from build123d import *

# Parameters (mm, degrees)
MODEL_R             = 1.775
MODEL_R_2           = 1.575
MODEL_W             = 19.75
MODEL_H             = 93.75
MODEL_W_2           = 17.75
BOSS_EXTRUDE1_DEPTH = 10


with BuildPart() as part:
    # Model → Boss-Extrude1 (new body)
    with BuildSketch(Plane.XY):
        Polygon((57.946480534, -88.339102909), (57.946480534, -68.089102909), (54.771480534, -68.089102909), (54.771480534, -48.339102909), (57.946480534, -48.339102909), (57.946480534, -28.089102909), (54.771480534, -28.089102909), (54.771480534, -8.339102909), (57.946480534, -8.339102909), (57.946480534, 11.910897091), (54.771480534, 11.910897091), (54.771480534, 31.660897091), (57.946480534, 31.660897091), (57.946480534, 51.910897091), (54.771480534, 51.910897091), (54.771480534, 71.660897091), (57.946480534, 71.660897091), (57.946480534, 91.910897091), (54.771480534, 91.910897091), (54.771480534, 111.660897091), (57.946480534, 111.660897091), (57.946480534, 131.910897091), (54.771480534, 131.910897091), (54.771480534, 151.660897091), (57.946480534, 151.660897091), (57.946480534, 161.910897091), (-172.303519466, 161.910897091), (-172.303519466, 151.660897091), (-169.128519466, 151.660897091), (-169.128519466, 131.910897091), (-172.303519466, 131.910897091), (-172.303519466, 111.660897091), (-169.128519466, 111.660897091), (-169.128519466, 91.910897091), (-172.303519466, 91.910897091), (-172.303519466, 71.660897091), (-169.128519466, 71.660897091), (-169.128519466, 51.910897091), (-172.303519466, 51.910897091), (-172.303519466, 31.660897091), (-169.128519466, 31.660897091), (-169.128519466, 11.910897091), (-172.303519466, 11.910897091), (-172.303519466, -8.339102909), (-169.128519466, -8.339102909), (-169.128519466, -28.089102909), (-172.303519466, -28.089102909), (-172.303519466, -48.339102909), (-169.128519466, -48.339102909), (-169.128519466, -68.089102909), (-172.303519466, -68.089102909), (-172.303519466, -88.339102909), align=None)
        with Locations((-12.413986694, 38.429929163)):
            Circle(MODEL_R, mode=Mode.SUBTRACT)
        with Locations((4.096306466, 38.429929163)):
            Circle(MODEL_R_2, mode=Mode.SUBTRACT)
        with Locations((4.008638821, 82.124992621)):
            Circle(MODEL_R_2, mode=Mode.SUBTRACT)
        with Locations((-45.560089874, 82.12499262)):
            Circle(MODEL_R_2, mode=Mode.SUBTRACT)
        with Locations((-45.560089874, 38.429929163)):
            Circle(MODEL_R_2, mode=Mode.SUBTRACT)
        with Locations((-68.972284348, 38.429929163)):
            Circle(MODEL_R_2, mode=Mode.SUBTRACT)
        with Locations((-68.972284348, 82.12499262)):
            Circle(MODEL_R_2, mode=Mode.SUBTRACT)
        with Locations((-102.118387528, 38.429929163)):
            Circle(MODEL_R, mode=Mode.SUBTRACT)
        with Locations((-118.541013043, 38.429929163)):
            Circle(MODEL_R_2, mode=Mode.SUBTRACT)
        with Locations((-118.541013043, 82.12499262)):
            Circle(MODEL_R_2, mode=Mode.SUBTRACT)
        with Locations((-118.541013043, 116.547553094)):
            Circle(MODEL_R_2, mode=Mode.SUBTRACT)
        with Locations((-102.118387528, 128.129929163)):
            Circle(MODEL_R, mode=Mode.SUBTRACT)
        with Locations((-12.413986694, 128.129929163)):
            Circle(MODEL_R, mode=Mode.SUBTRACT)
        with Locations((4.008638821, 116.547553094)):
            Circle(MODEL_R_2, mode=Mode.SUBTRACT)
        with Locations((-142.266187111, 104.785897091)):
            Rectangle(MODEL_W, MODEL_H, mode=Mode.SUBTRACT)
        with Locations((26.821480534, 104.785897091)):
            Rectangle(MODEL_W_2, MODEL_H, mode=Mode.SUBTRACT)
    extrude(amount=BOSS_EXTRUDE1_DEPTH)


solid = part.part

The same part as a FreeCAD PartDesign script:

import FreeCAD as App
import Part
import Sketcher

V = App.Vector
Q = App.Units.Quantity

doc = App.newDocument("Part")
body = doc.addObject("PartDesign::Body", "Body")

sketch1 = body.newObject("Sketcher::SketchObject", "Sketch")
sketch1.AttachmentSupport = (doc.getObject("XY_Plane"), [""])
sketch1.MapMode = "FlatFace"
sketch1.addGeometry([
    Part.LineSegment(V(57.9, -88.3, 0), V(57.9, -68.1, 0)),
    Part.LineSegment(V(57.9, -68.1, 0), V(54.8, -68.1, 0)),
    Part.LineSegment(V(54.8, -68.1, 0), V(54.8, -48.3, 0)),
    Part.LineSegment(V(54.8, -48.3, 0), V(57.9, -48.3, 0)),
    Part.LineSegment(V(57.9, -48.3, 0), V(57.9, -28.1, 0)),
    Part.LineSegment(V(57.9, -28.1, 0), V(54.8, -28.1, 0)),
    Part.LineSegment(V(54.8, -28.1, 0), V(54.8, -8.3, 0)),
    Part.LineSegment(V(54.8, -8.3, 0), V(57.9, -8.3, 0)),
    Part.LineSegment(V(57.9, -8.3, 0), V(57.9, 11.9, 0)),
    Part.LineSegment(V(57.9, 11.9, 0), V(54.8, 11.9, 0)),
    Part.LineSegment(V(54.8, 11.9, 0), V(54.8, 31.7, 0)),
    Part.LineSegment(V(54.8, 31.7, 0), V(57.9, 31.7, 0)),
    Part.LineSegment(V(57.9, 31.7, 0), V(57.9, 51.9, 0)),
    Part.LineSegment(V(57.9, 51.9, 0), V(54.8, 51.9, 0)),
    Part.LineSegment(V(54.8, 51.9, 0), V(54.8, 71.7, 0)),
    Part.LineSegment(V(54.8, 71.7, 0), V(57.9, 71.7, 0)),
    Part.LineSegment(V(57.9, 71.7, 0), V(57.9, 91.9, 0)),
    Part.LineSegment(V(57.9, 91.9, 0), V(54.8, 91.9, 0)),
    Part.LineSegment(V(54.8, 91.9, 0), V(54.8, 111.7, 0)),
    Part.LineSegment(V(54.8, 111.7, 0), V(57.9, 111.7, 0)),
    Part.LineSegment(V(57.9, 111.7, 0), V(57.9, 131.9, 0)),
    Part.LineSegment(V(57.9, 131.9, 0), V(54.8, 131.9, 0)),
    Part.LineSegment(V(54.8, 131.9, 0), V(54.8, 151.7, 0)),
    Part.LineSegment(V(54.8, 151.7, 0), V(57.9, 151.7, 0)),
    Part.LineSegment(V(57.9, 151.7, 0), V(57.9, 161.9, 0)),
    Part.LineSegment(V(57.9, 161.9, 0), V(-172.3, 161.9, 0)),
    Part.LineSegment(V(-172.3, 161.9, 0), V(-172.3, 151.7, 0)),
    Part.LineSegment(V(-172.3, 151.7, 0), V(-169.1, 151.7, 0)),
    Part.LineSegment(V(-169.1, 151.7, 0), V(-169.1, 131.9, 0)),
    Part.LineSegment(V(-169.1, 131.9, 0), V(-172.3, 131.9, 0)),
    Part.LineSegment(V(-172.3, 131.9, 0), V(-172.3, 111.7, 0)),
    Part.LineSegment(V(-172.3, 111.7, 0), V(-169.1, 111.7, 0)),
    Part.LineSegment(V(-169.1, 111.7, 0), V(-169.1, 91.9, 0)),
    Part.LineSegment(V(-169.1, 91.9, 0), V(-172.3, 91.9, 0)),
    Part.LineSegment(V(-172.3, 91.9, 0), V(-172.3, 71.7, 0)),
    Part.LineSegment(V(-172.3, 71.7, 0), V(-169.1, 71.7, 0)),
    Part.LineSegment(V(-169.1, 71.7, 0), V(-169.1, 51.9, 0)),
    Part.LineSegment(V(-169.1, 51.9, 0), V(-172.3, 51.9, 0)),
    Part.LineSegment(V(-172.3, 51.9, 0), V(-172.3, 31.7, 0)),
    Part.LineSegment(V(-172.3, 31.7, 0), V(-169.1, 31.7, 0)),
    Part.LineSegment(V(-169.1, 31.7, 0), V(-169.1, 11.9, 0)),
    Part.LineSegment(V(-169.1, 11.9, 0), V(-172.3, 11.9, 0)),
    Part.LineSegment(V(-172.3, 11.9, 0), V(-172.3, -8.3, 0)),
    Part.LineSegment(V(-172.3, -8.3, 0), V(-169.1, -8.3, 0)),
    Part.LineSegment(V(-169.1, -8.3, 0), V(-169.1, -28.1, 0)),
    Part.LineSegment(V(-169.1, -28.1, 0), V(-172.3, -28.1, 0)),
    Part.LineSegment(V(-172.3, -28.1, 0), V(-172.3, -48.3, 0)),
    Part.LineSegment(V(-172.3, -48.3, 0), V(-169.1, -48.3, 0)),
    Part.LineSegment(V(-169.1, -48.3, 0), V(-169.1, -68.1, 0)),
    Part.LineSegment(V(-169.1, -68.1, 0), V(-172.3, -68.1, 0)),
    Part.LineSegment(V(-172.3, -68.1, 0), V(-172.3, -88.3, 0)),
    Part.LineSegment(V(-172.3, -88.3, 0), V(57.9, -88.3, 0)),
    Part.Circle(V(-118.5, 38.4, 0), V(0, 0, 1), 1.6),
    Part.Circle(V(-102.1, 38.4, 0), V(0, 0, 1), 1.8),
    Part.Circle(V(-69, 38.4, 0), V(0, 0, 1), 1.6),
    Part.Circle(V(-118.5, 82.1, 0), V(0, 0, 1), 1.6),
    Part.Circle(V(-69, 82.1, 0), V(0, 0, 1), 1.6),
    Part.Circle(V(-45.6, 38.4, 0), V(0, 0, 1), 1.6),
    Part.Circle(V(-12.4, 38.4, 0), V(0, 0, 1), 1.8),
    Part.Circle(V(4.1, 38.4, 0), V(0, 0, 1), 1.6),
    Part.Circle(V(-45.6, 82.1, 0), V(0, 0, 1), 1.6),
    Part.Circle(V(4, 82.1, 0), V(0, 0, 1), 1.6),
    Part.LineSegment(V(-132.4, 57.9, 0), V(-152.1, 57.9, 0)),
    Part.LineSegment(V(-152.1, 57.9, 0), V(-152.1, 151.7, 0)),
    Part.LineSegment(V(-152.1, 151.7, 0), V(-132.4, 151.7, 0)),
    Part.LineSegment(V(-132.4, 151.7, 0), V(-132.4, 57.9, 0)),
    Part.Circle(V(-118.5, 116.5, 0), V(0, 0, 1), 1.6),
    Part.Circle(V(-102.1, 128.1, 0), V(0, 0, 1), 1.8),
    Part.LineSegment(V(35.7, 57.9, 0), V(17.9, 57.9, 0)),
    Part.LineSegment(V(17.9, 57.9, 0), V(17.9, 151.7, 0)),
    Part.LineSegment(V(17.9, 151.7, 0), V(35.7, 151.7, 0)),
    Part.LineSegment(V(35.7, 151.7, 0), V(35.7, 57.9, 0)),
    Part.Circle(V(4, 116.5, 0), V(0, 0, 1), 1.6),
    Part.Circle(V(-12.4, 128.1, 0), V(0, 0, 1), 1.8),
], False)
sketch1.addConstraint([
    Sketcher.Constraint("Coincident", 0, 2, 1, 1),
    Sketcher.Constraint("Coincident", 1, 2, 2, 1),
    Sketcher.Constraint("Coincident", 2, 2, 3, 1),
    Sketcher.Constraint("Coincident", 3, 2, 4, 1),
    Sketcher.Constraint("Coincident", 4, 2, 5, 1),
    Sketcher.Constraint("Coincident", 5, 2, 6, 1),
    Sketcher.Constraint("Coincident", 6, 2, 7, 1),
    Sketcher.Constraint("Coincident", 7, 2, 8, 1),
    Sketcher.Constraint("Coincident", 8, 2, 9, 1),
    Sketcher.Constraint("Coincident", 9, 2, 10, 1),
    Sketcher.Constraint("Coincident", 10, 2, 11, 1),
    Sketcher.Constraint("Coincident", 11, 2, 12, 1),
    Sketcher.Constraint("Coincident", 12, 2, 13, 1),
    Sketcher.Constraint("Coincident", 13, 2, 14, 1),
    Sketcher.Constraint("Coincident", 14, 2, 15, 1),
    Sketcher.Constraint("Coincident", 15, 2, 16, 1),
    Sketcher.Constraint("Coincident", 16, 2, 17, 1),
    Sketcher.Constraint("Coincident", 17, 2, 18, 1),
    Sketcher.Constraint("Coincident", 18, 2, 19, 1),
    Sketcher.Constraint("Coincident", 19, 2, 20, 1),
    Sketcher.Constraint("Coincident", 20, 2, 21, 1),
    Sketcher.Constraint("Coincident", 21, 2, 22, 1),
    Sketcher.Constraint("Coincident", 22, 2, 23, 1),
    Sketcher.Constraint("Coincident", 23, 2, 24, 1),
    Sketcher.Constraint("Coincident", 24, 2, 25, 1),
    Sketcher.Constraint("Coincident", 25, 2, 26, 1),
    Sketcher.Constraint("Coincident", 26, 2, 27, 1),
    Sketcher.Constraint("Coincident", 27, 2, 28, 1),
    Sketcher.Constraint("Coincident", 28, 2, 29, 1),
    Sketcher.Constraint("Coincident", 29, 2, 30, 1),
    Sketcher.Constraint("Coincident", 30, 2, 31, 1),
    Sketcher.Constraint("Coincident", 31, 2, 32, 1),
    Sketcher.Constraint("Coincident", 32, 2, 33, 1),
    Sketcher.Constraint("Coincident", 33, 2, 34, 1),
    Sketcher.Constraint("Coincident", 34, 2, 35, 1),
    Sketcher.Constraint("Coincident", 35, 2, 36, 1),
    Sketcher.Constraint("Coincident", 36, 2, 37, 1),
    Sketcher.Constraint("Coincident", 37, 2, 38, 1),
    Sketcher.Constraint("Coincident", 38, 2, 39, 1),
    Sketcher.Constraint("Coincident", 39, 2, 40, 1),
    Sketcher.Constraint("Coincident", 40, 2, 41, 1),
    Sketcher.Constraint("Coincident", 41, 2, 42, 1),
    Sketcher.Constraint("Coincident", 42, 2, 43, 1),
    Sketcher.Constraint("Coincident", 43, 2, 44, 1),
    Sketcher.Constraint("Coincident", 44, 2, 45, 1),
    Sketcher.Constraint("Coincident", 45, 2, 46, 1),
    Sketcher.Constraint("Coincident", 46, 2, 47, 1),
    Sketcher.Constraint("Coincident", 47, 2, 48, 1),
    Sketcher.Constraint("Coincident", 48, 2, 49, 1),
    Sketcher.Constraint("Coincident", 49, 2, 50, 1),
    Sketcher.Constraint("Coincident", 50, 2, 51, 1),
    Sketcher.Constraint("Coincident", 51, 2, 0, 1),
    Sketcher.Constraint("Coincident", 62, 2, 63, 1),
    Sketcher.Constraint("Coincident", 63, 2, 64, 1),
    Sketcher.Constraint("Coincident", 64, 2, 65, 1),
    Sketcher.Constraint("Coincident", 65, 2, 62, 1),
    Sketcher.Constraint("Coincident", 68, 2, 69, 1),
    Sketcher.Constraint("Coincident", 69, 2, 70, 1),
    Sketcher.Constraint("Coincident", 70, 2, 71, 1),
    Sketcher.Constraint("Coincident", 71, 2, 68, 1),
    Sketcher.Constraint("Vertical", 0),
    Sketcher.Constraint("Horizontal", 1),
    Sketcher.Constraint("Vertical", 2),
    Sketcher.Constraint("Horizontal", 3),
    Sketcher.Constraint("Vertical", 4),
    Sketcher.Constraint("Horizontal", 5),
    Sketcher.Constraint("Vertical", 6),
    Sketcher.Constraint("Horizontal", 7),
    Sketcher.Constraint("Vertical", 8),
    Sketcher.Constraint("Horizontal", 9),
    Sketcher.Constraint("Vertical", 10),
    Sketcher.Constraint("Horizontal", 11),
    Sketcher.Constraint("Vertical", 12),
    Sketcher.Constraint("Horizontal", 13),
    Sketcher.Constraint("Vertical", 14),
    Sketcher.Constraint("Horizontal", 15),
    Sketcher.Constraint("Vertical", 16),
    Sketcher.Constraint("Horizontal", 17),
    Sketcher.Constraint("Vertical", 18),
    Sketcher.Constraint("Horizontal", 19),
    Sketcher.Constraint("Vertical", 20),
    Sketcher.Constraint("Horizontal", 21),
    Sketcher.Constraint("Vertical", 22),
    Sketcher.Constraint("Horizontal", 23),
    Sketcher.Constraint("Vertical", 24),
    Sketcher.Constraint("Horizontal", 25),
    Sketcher.Constraint("Vertical", 26),
    Sketcher.Constraint("Horizontal", 27),
    Sketcher.Constraint("Vertical", 28),
    Sketcher.Constraint("Horizontal", 29),
    Sketcher.Constraint("Vertical", 30),
    Sketcher.Constraint("Horizontal", 31),
    Sketcher.Constraint("Vertical", 32),
    Sketcher.Constraint("Horizontal", 33),
    Sketcher.Constraint("Vertical", 34),
    Sketcher.Constraint("Horizontal", 35),
    Sketcher.Constraint("Vertical", 36),
    Sketcher.Constraint("Horizontal", 37),
    Sketcher.Constraint("Vertical", 38),
    Sketcher.Constraint("Horizontal", 39),
    Sketcher.Constraint("Vertical", 40),
    Sketcher.Constraint("Horizontal", 41),
    Sketcher.Constraint("Vertical", 42),
    Sketcher.Constraint("Horizontal", 43),
    Sketcher.Constraint("Vertical", 44),
    Sketcher.Constraint("Horizontal", 45),
    Sketcher.Constraint("Vertical", 46),
    Sketcher.Constraint("Horizontal", 47),
    Sketcher.Constraint("Vertical", 48),
    Sketcher.Constraint("Horizontal", 49),
    Sketcher.Constraint("Vertical", 50),
    Sketcher.Constraint("Horizontal", 51),
    Sketcher.Constraint("Horizontal", 62),
    Sketcher.Constraint("Vertical", 63),
    Sketcher.Constraint("Horizontal", 64),
    Sketcher.Constraint("Vertical", 65),
    Sketcher.Constraint("Horizontal", 68),
    Sketcher.Constraint("Vertical", 69),
    Sketcher.Constraint("Horizontal", 70),
    Sketcher.Constraint("Vertical", 71),
    Sketcher.Constraint("Equal", 52, 54),
    Sketcher.Constraint("Equal", 54, 55),
    Sketcher.Constraint("Equal", 55, 56),
    Sketcher.Constraint("Equal", 56, 57),
    Sketcher.Constraint("Equal", 53, 58),
    Sketcher.Constraint("Equal", 57, 59),
    Sketcher.Constraint("Equal", 59, 60),
    Sketcher.Constraint("Equal", 60, 61),
    Sketcher.Constraint("Equal", 61, 66),
    Sketcher.Constraint("Equal", 58, 67),
    Sketcher.Constraint("Equal", 66, 72),
    Sketcher.Constraint("Equal", 67, 73),
    Sketcher.Constraint("Horizontal", 52, 3, 53, 3),
    Sketcher.Constraint("Horizontal", 53, 3, 54, 3),
    Sketcher.Constraint("Horizontal", 55, 3, 56, 3),
    Sketcher.Constraint("Horizontal", 54, 3, 57, 3),
    Sketcher.Constraint("Horizontal", 57, 3, 58, 3),
    Sketcher.Constraint("Horizontal", 58, 3, 59, 3),
    Sketcher.Constraint("Horizontal", 56, 3, 60, 3),
    Sketcher.Constraint("Horizontal", 60, 3, 61, 3),
    Sketcher.Constraint("Horizontal", 66, 3, 72, 3),
    Sketcher.Constraint("Horizontal", 67, 3, 73, 3),
    Sketcher.Constraint("Horizontal", 23, 2, 26, 2),
    Sketcher.Constraint("Horizontal", 21, 2, 28, 2),
    Sketcher.Constraint("Horizontal", 19, 2, 30, 2),
    Sketcher.Constraint("Horizontal", 17, 2, 32, 2),
    Sketcher.Constraint("Horizontal", 15, 2, 34, 2),
    Sketcher.Constraint("Horizontal", 13, 2, 36, 2),
    Sketcher.Constraint("Horizontal", 11, 2, 38, 2),
    Sketcher.Constraint("Horizontal", 9, 2, 40, 2),
    Sketcher.Constraint("Horizontal", 7, 2, 42, 2),
    Sketcher.Constraint("Horizontal", 5, 2, 44, 2),
    Sketcher.Constraint("Horizontal", 3, 2, 46, 2),
    Sketcher.Constraint("Horizontal", 1, 2, 48, 2),
    Sketcher.Constraint("Horizontal", 27, 2, 63, 2),
    Sketcher.Constraint("Horizontal", 65, 2, 68, 2),
    Sketcher.Constraint("Horizontal", 64, 2, 69, 2),
    Sketcher.Constraint("Vertical", 52, 3, 55, 3),
    Sketcher.Constraint("Vertical", 54, 3, 56, 3),
    Sketcher.Constraint("Vertical", 57, 3, 60, 3),
    Sketcher.Constraint("Vertical", 55, 3, 66, 3),
    Sketcher.Constraint("Vertical", 53, 3, 67, 3),
    Sketcher.Constraint("Vertical", 61, 3, 72, 3),
    Sketcher.Constraint("Vertical", 58, 3, 73, 3),
    Sketcher.Constraint("Vertical", 0, 2, 3, 2),
    Sketcher.Constraint("Vertical", 2, 2, 5, 2),
    Sketcher.Constraint("Vertical", 4, 2, 7, 2),
    Sketcher.Constraint("Vertical", 6, 2, 9, 2),
    Sketcher.Constraint("Vertical", 8, 2, 11, 2),
    Sketcher.Constraint("Vertical", 10, 2, 13, 2),
    Sketcher.Constraint("Vertical", 12, 2, 15, 2),
    Sketcher.Constraint("Vertical", 14, 2, 17, 2),
    Sketcher.Constraint("Vertical", 16, 2, 19, 2),
    Sketcher.Constraint("Vertical", 18, 2, 21, 2),
    Sketcher.Constraint("Vertical", 20, 2, 23, 2),
    Sketcher.Constraint("Vertical", 26, 2, 29, 2),
    Sketcher.Constraint("Vertical", 28, 2, 31, 2),
    Sketcher.Constraint("Vertical", 30, 2, 33, 2),
    Sketcher.Constraint("Vertical", 32, 2, 35, 2),
    Sketcher.Constraint("Vertical", 34, 2, 37, 2),
    Sketcher.Constraint("Vertical", 36, 2, 39, 2),
    Sketcher.Constraint("Vertical", 38, 2, 41, 2),
    Sketcher.Constraint("Vertical", 40, 2, 43, 2),
    Sketcher.Constraint("Vertical", 42, 2, 45, 2),
    Sketcher.Constraint("Vertical", 44, 2, 47, 2),
    Sketcher.Constraint("Vertical", 46, 2, 49, 2),
    Sketcher.Constraint("Equal", 23, 27),
    Sketcher.Constraint("Equal", 64, 2),
    Sketcher.Constraint("Equal", 0, 4),
    Sketcher.Constraint("Equal", 2, 6),
    Sketcher.Constraint("Equal", 4, 8),
    Sketcher.Constraint("Equal", 6, 10),
    Sketcher.Constraint("Equal", 8, 12),
    Sketcher.Constraint("Equal", 10, 14),
    Sketcher.Constraint("Equal", 12, 16),
    Sketcher.Constraint("Equal", 14, 18),
    Sketcher.Constraint("Equal", 16, 20),
    Sketcher.Constraint("Equal", 18, 22),
    Sketcher.Constraint("Diameter", 52, Q("3.15 mm")),
    Sketcher.Constraint("Diameter", 53, Q("3.55 mm")),
    Sketcher.Constraint("DistanceX", 25, 2, 25, 1, Q("230.25 mm")),
    Sketcher.Constraint("DistanceX", 62, 2, 62, 1, Q("19.75 mm")),
    Sketcher.Constraint("DistanceX", 68, 2, 68, 1, Q("17.75 mm")),
    Sketcher.Constraint("DistanceY", 0, 1, 0, 2, Q("20.25 mm")),
    Sketcher.Constraint("DistanceY", 24, 1, 24, 2, Q("10.25 mm")),
    Sketcher.Constraint("DistanceY", 63, 1, 63, 2, Q("93.75 mm")),
    Sketcher.Constraint("DistanceX", 1, 2, 1, 1, Q("3.175 mm")),
    Sketcher.Constraint("DistanceY", -1, 1, 52, 3, Q("38.429929 mm")),
    Sketcher.Constraint("DistanceX", 57, 3, -1, 1, Q("45.56009 mm")),
    Sketcher.Constraint("DistanceX", -1, 1, 61, 3, Q("4.008639 mm")),
    Sketcher.Constraint("DistanceY", -1, 1, 67, 3, Q("128.129929 mm")),
    Sketcher.Constraint("DistanceX", -1, 1, 0, 2, Q("57.946481 mm")),
    Sketcher.Constraint("DistanceX", -1, 1, 68, 2, Q("17.946481 mm")),
    Sketcher.Constraint("DistanceX", 52, 3, -1, 1, Q("118.541013 mm")),
    Sketcher.Constraint("DistanceX", 53, 3, -1, 1, Q("102.118388 mm")),
    Sketcher.Constraint("DistanceX", 54, 3, -1, 1, Q("68.972284 mm")),
    Sketcher.Constraint("DistanceY", -1, 1, 55, 3, Q("82.124993 mm")),
    Sketcher.Constraint("DistanceX", 58, 3, -1, 1, Q("12.413987 mm")),
    Sketcher.Constraint("DistanceX", -1, 1, 59, 3, Q("4.096306 mm")),
    Sketcher.Constraint("DistanceY", -1, 1, 66, 3, Q("116.547553 mm")),
    Sketcher.Constraint("DistanceY", 0, 2, -1, 1, Q("68.089103 mm")),
    Sketcher.Constraint("DistanceX", 62, 2, -1, 1, Q("152.141187 mm")),
])
pad1 = body.newObject("PartDesign::Pad", "Pad")
pad1.Profile = sketch1
pad1.Length = 10

doc.recompute()
